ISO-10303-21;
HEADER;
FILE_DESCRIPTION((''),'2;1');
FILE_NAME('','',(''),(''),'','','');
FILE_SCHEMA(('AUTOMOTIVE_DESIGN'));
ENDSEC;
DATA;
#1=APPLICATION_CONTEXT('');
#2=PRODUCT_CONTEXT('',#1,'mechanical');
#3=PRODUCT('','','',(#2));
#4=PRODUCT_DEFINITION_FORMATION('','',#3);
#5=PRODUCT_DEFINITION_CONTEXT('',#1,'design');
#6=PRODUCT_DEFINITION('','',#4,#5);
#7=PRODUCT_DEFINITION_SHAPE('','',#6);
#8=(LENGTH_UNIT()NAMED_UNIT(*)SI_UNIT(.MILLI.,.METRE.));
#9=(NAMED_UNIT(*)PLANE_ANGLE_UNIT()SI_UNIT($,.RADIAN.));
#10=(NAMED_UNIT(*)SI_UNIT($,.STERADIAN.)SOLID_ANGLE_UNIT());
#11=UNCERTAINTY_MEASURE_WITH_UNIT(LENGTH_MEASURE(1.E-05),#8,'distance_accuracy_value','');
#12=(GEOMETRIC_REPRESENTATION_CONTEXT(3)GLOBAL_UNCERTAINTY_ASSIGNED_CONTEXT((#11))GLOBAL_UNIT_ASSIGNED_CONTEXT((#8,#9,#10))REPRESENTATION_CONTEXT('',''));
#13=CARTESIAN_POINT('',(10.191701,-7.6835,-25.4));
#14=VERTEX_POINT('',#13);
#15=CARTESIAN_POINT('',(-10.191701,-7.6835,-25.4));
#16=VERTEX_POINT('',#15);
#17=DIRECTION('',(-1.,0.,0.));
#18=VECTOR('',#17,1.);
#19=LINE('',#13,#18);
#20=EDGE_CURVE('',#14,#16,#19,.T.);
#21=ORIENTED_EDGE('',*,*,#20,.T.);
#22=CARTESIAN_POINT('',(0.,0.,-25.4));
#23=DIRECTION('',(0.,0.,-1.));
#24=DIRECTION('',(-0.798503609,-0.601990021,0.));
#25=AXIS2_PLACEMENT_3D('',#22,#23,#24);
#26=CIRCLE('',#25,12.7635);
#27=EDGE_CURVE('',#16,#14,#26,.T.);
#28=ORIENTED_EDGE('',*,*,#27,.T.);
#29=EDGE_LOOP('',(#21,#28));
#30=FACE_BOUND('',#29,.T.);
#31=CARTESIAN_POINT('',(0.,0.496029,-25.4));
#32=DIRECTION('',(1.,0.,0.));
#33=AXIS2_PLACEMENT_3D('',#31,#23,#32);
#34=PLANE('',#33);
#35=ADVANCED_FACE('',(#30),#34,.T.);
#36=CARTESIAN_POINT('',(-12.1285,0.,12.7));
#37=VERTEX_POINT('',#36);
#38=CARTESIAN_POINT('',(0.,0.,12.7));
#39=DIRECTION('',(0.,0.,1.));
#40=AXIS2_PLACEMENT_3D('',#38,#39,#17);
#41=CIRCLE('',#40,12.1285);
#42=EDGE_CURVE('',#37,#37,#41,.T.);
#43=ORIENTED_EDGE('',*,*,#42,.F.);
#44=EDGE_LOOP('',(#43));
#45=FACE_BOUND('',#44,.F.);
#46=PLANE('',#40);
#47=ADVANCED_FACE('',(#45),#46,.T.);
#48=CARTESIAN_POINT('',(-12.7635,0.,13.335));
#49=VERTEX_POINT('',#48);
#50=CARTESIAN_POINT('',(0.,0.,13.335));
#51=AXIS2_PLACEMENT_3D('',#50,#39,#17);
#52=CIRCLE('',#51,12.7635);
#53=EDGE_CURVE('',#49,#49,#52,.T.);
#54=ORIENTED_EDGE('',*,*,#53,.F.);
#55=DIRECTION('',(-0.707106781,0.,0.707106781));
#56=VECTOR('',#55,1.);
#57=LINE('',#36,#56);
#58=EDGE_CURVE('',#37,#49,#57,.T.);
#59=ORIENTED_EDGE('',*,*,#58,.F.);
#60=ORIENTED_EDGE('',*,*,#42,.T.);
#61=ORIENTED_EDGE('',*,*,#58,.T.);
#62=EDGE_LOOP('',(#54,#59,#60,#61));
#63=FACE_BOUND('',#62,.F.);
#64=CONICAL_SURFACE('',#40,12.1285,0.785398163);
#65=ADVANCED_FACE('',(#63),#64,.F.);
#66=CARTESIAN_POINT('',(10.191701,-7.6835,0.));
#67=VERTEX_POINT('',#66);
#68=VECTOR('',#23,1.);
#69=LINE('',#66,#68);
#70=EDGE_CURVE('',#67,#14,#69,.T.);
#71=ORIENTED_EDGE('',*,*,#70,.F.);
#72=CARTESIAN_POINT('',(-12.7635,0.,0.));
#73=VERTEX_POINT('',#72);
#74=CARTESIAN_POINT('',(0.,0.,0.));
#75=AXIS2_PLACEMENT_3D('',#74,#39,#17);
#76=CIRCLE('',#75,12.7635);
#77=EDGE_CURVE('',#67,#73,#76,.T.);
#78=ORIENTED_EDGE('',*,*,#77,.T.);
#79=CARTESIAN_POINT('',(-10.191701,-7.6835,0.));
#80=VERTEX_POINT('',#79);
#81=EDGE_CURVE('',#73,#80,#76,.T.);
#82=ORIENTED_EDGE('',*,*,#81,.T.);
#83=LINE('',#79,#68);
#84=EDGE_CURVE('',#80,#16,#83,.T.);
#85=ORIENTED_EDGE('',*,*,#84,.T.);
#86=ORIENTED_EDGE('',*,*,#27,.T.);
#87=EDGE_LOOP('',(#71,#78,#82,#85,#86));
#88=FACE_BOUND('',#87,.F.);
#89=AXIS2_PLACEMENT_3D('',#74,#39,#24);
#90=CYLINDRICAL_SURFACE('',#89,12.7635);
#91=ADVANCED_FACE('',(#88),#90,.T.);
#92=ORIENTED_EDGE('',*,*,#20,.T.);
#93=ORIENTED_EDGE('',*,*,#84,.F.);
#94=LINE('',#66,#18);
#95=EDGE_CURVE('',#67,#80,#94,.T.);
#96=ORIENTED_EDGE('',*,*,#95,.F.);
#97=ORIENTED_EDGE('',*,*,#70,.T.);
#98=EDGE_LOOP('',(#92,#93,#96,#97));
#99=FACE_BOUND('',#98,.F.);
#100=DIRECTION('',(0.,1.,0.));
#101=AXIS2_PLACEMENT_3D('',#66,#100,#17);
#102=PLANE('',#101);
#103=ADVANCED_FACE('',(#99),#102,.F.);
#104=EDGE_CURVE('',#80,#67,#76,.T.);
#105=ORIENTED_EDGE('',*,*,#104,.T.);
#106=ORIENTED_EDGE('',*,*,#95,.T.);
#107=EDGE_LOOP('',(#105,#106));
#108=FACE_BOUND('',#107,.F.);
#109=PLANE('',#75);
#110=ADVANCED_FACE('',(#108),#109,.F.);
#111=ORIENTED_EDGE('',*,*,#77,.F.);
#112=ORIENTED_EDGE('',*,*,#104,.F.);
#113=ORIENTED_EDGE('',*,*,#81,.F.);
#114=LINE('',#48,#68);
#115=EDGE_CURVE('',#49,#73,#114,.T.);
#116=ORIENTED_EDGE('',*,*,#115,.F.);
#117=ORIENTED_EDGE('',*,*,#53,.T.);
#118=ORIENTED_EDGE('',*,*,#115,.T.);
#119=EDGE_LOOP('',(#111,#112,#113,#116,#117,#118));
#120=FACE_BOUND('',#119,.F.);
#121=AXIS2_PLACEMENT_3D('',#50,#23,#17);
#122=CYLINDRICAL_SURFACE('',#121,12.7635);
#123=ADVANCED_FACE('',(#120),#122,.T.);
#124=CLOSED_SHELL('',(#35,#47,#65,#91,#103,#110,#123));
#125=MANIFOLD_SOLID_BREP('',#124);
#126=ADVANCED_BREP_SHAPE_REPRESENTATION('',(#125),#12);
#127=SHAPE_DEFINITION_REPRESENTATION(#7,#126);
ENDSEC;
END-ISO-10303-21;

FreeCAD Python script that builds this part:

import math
import FreeCAD as App
import Part
import Sketcher

V = App.Vector
Q = App.Units.Quantity


def add_polygon(sketch, points):
    """Adds a closed chain of lines whose ends are joined by coincident constraints."""
    first, n = sketch.GeometryCount, len(points)
    for a, b in zip(points, points[1:] + points[:1]):
        sketch.addGeometry(Part.LineSegment(App.Vector(*a, 0), App.Vector(*b, 0)), False)
    for i in range(n):
        sketch.addConstraint(Sketcher.Constraint("Coincident", first + i, 2, first + (i + 1) % n, 1))

doc = App.newDocument("Part")
body = doc.addObject("PartDesign::Body", "Body")

# Sketch on XZ plane
sketch1 = doc.addObject("Sketcher::SketchObject", "Sketch")
body.addObject(sketch1)
sketch1.AttachmentSupport = (doc.XZ_Plane, [""])
sketch1.MapMode = "FlatFace"
add_polygon(sketch1, [(-12.7635, 0), (0, 0), (0, 12.7), (-12.1285, 12.7), (-12.7635, 13.335)])  # lines 0-4
sketch1.addConstraint([
    Sketcher.Constraint("Horizontal", 0),
    Sketcher.Constraint("Vertical", 1),
    Sketcher.Constraint("Horizontal", 2),
    Sketcher.Constraint("Vertical", 4),
    Sketcher.Constraint("Coincident", 0, 2, -1, 1),
    Sketcher.Constraint("DistanceY", 1, 1, 1, 2, Q("0.5 in")),
    Sketcher.Constraint("Angle", 3, Q("135 deg")),
    Sketcher.Constraint("DistanceY", 4, 2, 4, 1, Q("0.525 in")),
    Sketcher.Constraint("DistanceX", 0, 1, 0, 2, Q("0.5025 in")),
])
revolution = doc.addObject("PartDesign::Revolution", "Revolution")
body.addObject(revolution)
revolution.Profile = sketch1
revolution.ReferenceAxis = (sketch1, ["V_Axis"])
revolution.Angle = 360

# Sketch on XY plane
sketch2 = doc.addObject("Sketcher::SketchObject", "Sketch001")
body.addObject(sketch2)
sketch2.AttachmentSupport = (doc.XY_Plane, [""])
sketch2.MapMode = "FlatFace"
sketch2.addGeometry([
    Part.LineSegment(V(10.191701, -7.6835, 0), V(-10.191701, -7.6835, 0)),
    Part.ArcOfCircle(Part.Circle(V(0, 0, 0), V(0, 0, 1), 12.7635), math.radians(-37.012556), math.radians(217.012556)),
], False)
sketch2.addConstraint([
    Sketcher.Constraint("Coincident", 0, 1, 1, 1),
    Sketcher.Constraint("Coincident", 1, 2, 0, 2),
    Sketcher.Constraint("Horizontal", 0),
    Sketcher.Constraint("Coincident", 1, 3, -1, 1),
    Sketcher.Constraint("Radius", 1, Q("0.5025 in")),
    Sketcher.Constraint("DistanceX", 0, 2, 0, 1, Q("20.383402 mm")),
])
pad1 = doc.addObject("PartDesign::Pad", "Pad")
body.addObject(pad1)
pad1.Profile = sketch2
pad1.Length = Q("1 in")
pad1.Reversed = True

doc.recompute()
